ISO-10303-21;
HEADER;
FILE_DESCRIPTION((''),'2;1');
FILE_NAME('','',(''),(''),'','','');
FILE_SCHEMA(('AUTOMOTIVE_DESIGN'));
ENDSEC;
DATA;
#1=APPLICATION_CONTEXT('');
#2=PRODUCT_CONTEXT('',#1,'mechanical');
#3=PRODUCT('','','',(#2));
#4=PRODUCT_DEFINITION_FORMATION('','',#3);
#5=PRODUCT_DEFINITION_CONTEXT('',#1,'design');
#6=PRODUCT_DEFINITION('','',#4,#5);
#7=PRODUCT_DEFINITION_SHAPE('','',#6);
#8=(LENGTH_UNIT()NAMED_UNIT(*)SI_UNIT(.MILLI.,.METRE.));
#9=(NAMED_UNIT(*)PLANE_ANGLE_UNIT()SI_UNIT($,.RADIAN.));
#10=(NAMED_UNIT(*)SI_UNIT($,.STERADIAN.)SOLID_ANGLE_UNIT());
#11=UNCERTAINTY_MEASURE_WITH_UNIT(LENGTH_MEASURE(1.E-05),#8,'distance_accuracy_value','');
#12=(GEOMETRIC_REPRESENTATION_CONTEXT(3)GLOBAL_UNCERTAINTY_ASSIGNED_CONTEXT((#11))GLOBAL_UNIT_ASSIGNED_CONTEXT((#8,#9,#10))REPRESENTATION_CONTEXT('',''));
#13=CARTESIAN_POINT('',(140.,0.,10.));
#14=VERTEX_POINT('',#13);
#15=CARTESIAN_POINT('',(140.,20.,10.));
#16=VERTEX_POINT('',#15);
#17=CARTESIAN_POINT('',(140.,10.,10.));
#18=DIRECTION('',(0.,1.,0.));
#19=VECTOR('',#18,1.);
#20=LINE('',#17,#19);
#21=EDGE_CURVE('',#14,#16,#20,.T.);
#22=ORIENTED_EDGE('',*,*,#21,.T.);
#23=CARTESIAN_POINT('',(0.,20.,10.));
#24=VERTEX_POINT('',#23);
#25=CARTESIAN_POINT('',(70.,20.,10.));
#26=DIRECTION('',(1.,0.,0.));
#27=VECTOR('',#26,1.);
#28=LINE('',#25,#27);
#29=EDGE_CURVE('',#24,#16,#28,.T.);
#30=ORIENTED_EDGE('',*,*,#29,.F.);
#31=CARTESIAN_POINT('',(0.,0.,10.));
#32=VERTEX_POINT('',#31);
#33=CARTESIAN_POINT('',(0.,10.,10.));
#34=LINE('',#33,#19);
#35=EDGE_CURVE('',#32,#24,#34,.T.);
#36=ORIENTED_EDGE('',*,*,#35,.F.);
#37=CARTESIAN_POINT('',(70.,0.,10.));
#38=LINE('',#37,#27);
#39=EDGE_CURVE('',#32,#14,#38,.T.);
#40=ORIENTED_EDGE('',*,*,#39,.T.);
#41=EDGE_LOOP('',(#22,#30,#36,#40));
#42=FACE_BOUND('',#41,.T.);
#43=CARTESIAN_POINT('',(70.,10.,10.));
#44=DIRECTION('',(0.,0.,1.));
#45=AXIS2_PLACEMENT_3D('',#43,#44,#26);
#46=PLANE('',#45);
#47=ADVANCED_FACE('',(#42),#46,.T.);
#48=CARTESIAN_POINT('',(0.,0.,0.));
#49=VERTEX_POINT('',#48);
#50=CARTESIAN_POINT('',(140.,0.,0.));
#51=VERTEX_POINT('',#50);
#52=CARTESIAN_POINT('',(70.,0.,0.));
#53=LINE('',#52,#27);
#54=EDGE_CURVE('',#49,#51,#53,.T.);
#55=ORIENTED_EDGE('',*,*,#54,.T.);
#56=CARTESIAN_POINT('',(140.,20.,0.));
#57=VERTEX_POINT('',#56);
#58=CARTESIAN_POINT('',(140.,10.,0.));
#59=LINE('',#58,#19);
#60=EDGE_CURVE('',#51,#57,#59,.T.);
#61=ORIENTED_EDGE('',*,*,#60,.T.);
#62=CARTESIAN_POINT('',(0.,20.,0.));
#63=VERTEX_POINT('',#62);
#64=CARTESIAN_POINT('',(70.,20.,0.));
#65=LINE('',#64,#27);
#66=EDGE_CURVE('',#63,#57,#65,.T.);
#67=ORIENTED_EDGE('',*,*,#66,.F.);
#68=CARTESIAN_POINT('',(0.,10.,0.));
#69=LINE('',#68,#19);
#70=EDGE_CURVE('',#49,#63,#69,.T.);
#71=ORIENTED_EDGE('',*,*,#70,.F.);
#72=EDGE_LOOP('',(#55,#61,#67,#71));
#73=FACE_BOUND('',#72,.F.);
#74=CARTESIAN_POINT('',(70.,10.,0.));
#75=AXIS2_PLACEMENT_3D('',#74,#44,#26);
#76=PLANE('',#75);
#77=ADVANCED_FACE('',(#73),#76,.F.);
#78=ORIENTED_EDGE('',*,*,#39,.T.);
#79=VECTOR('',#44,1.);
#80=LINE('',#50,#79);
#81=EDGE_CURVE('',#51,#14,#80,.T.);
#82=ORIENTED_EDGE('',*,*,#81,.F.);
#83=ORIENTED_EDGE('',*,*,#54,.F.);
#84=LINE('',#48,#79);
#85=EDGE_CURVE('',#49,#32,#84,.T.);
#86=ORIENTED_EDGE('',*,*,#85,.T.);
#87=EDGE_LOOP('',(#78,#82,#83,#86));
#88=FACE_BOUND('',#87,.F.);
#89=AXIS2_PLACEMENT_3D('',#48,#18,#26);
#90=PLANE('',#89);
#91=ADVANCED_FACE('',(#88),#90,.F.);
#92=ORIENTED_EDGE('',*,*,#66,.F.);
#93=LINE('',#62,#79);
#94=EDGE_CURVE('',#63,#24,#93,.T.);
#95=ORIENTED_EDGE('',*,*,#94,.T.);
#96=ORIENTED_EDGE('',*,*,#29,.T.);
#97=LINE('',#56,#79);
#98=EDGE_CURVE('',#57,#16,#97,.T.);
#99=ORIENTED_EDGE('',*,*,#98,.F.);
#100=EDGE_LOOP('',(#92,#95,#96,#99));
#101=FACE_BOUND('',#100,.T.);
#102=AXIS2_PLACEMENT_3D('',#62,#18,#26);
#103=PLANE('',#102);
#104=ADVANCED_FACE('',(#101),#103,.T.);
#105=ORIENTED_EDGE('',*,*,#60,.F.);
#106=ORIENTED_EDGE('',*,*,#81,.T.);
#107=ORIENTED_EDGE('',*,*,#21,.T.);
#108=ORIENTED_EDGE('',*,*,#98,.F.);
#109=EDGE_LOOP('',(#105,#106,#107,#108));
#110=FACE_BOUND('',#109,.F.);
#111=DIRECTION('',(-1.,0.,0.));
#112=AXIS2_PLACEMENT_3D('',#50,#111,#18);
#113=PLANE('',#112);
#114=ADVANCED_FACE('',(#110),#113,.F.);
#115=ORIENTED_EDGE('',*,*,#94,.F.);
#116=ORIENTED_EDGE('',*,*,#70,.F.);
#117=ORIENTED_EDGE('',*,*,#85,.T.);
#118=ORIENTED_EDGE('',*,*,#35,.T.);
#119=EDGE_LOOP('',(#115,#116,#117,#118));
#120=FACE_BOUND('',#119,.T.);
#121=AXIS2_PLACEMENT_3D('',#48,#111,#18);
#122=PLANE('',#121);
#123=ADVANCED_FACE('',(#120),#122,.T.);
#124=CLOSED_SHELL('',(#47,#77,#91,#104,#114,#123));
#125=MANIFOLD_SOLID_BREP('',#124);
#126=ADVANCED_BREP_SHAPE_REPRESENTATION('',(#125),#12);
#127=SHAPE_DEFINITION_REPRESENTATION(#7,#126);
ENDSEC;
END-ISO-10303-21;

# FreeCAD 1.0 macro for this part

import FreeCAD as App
import Part
import Sketcher
Q = App.Units.Quantity


def add_polygon(sketch, points):
    """Adds a closed chain of lines whose ends are joined by coincident constraints."""
    first, n = sketch.GeometryCount, len(points)
    for a, b in zip(points, points[1:] + points[:1]):
        sketch.addGeometry(Part.LineSegment(App.Vector(*a, 0), App.Vector(*b, 0)), False)
    for i in range(n):
        sketch.addConstraint(Sketcher.Constraint("Coincident", first + i, 2, first + (i + 1) % n, 1))

doc = App.newDocument("Part")
body = doc.addObject("PartDesign::Body", "Body")

sketch1 = body.newObject("Sketcher::SketchObject", "Sketch")
sketch1.AttachmentSupport = (doc.getObject("XY_Plane"), [""])
sketch1.MapMode = "FlatFace"
add_polygon(sketch1, [(0, 20), (0, 0), (140, 0), (140, 20)])
sketch1.addConstraint(Sketcher.Constraint("Vertical", 0))
sketch1.addConstraint(Sketcher.Constraint("Horizontal", 1))
sketch1.addConstraint(Sketcher.Constraint("Vertical", 2))
sketch1.addConstraint(Sketcher.Constraint("Horizontal", 3))
sketch1.addConstraint(Sketcher.Constraint("Coincident", 0, 2, -1, 1))
sketch1.addConstraint(Sketcher.Constraint("DistanceX", 1, 1, 1, 2, Q("140 mm")))
sketch1.addConstraint(Sketcher.Constraint("DistanceY", 0, 2, 0, 1, Q("20 mm")))
pad1 = body.newObject("PartDesign::Pad", "Pad")
pad1.Profile = sketch1
pad1.Length = 10

doc.recompute()
